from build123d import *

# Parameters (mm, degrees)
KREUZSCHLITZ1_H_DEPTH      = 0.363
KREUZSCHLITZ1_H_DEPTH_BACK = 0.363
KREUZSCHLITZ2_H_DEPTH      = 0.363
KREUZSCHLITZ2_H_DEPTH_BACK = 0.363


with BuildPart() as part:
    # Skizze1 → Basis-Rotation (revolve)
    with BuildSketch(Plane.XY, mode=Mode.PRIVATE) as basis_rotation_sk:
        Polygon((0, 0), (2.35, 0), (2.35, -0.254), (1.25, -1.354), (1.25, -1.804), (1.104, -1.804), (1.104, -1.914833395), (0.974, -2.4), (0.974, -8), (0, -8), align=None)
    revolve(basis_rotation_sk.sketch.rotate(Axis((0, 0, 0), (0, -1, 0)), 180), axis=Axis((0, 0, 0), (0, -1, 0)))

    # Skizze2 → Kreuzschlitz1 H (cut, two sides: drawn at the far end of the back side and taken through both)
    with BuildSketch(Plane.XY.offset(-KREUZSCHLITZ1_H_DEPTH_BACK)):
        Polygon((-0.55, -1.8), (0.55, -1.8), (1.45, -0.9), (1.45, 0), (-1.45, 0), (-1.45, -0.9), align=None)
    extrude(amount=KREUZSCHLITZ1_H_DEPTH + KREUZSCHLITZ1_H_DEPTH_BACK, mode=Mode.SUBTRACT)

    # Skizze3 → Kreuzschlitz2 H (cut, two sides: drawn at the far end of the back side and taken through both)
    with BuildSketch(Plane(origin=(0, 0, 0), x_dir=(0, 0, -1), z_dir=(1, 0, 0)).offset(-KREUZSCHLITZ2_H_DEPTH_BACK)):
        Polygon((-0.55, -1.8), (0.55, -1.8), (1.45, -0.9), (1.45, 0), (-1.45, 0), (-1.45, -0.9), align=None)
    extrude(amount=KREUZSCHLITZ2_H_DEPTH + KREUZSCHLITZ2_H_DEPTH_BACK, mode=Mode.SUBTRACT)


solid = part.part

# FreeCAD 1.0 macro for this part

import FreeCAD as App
import Part
import Sketcher

V = App.Vector
Q = App.Units.Quantity


def add_polygon(sketch, points):
    """Adds a closed chain of lines whose ends are joined by coincident constraints."""
    first, n = sketch.GeometryCount, len(points)
    for a, b in zip(points, points[1:] + points[:1]):
        sketch.addGeometry(Part.LineSegment(App.Vector(*a, 0), App.Vector(*b, 0)), False)
    for i in range(n):
        sketch.addConstraint(Sketcher.Constraint("Coincident", first + i, 2, first + (i + 1) % n, 1))

doc = App.newDocument("Part")
body = doc.addObject("PartDesign::Body", "Body")

# Sketch on XY plane
sketch1 = body.newObject("Sketcher::SketchObject", "Sketch")
sketch1.AttachmentSupport = (doc.getObject("XY_Plane"), [""])
sketch1.MapMode = "FlatFace"
add_polygon(sketch1, [(2.35, 0), (0, 0), (0, -8), (0.974, -8), (0.974, -2.4), (1.104, -1.914833), (1.104, -1.804), (1.25, -1.804), (1.25, -1.354), (2.35, -0.254)])  # lines 0-9
sketch1.addConstraint(Sketcher.Constraint("Horizontal", 0))
sketch1.addConstraint(Sketcher.Constraint("Vertical", 1))
sketch1.addConstraint(Sketcher.Constraint("Horizontal", 2))
sketch1.addConstraint(Sketcher.Constraint("Vertical", 3))
sketch1.addConstraint(Sketcher.Constraint("Vertical", 5))
sketch1.addConstraint(Sketcher.Constraint("Horizontal", 6))
sketch1.addConstraint(Sketcher.Constraint("Vertical", 7))
sketch1.addConstraint(Sketcher.Constraint("Vertical", 9))
sketch1.addConstraint(Sketcher.Constraint("Coincident", 0, 2, -1, 1))
sketch1.addConstraint(Sketcher.Constraint("DistanceY", 1, 2, 1, 1, Q("8 mm")))
sketch1.addConstraint(Sketcher.Constraint("Angle", 4, Q("75 deg")))
sketch1.addConstraint(Sketcher.Constraint("Angle", 8, Q("45 deg")))
sketch1.addConstraint(Sketcher.Constraint("DistanceY", 3, 1, 3, 2, Q("5.6 mm")))
sketch1.addConstraint(Sketcher.Constraint("DistanceX", 0, 2, 0, 1, Q("2.35 mm")))
sketch1.addConstraint(Sketcher.Constraint("DistanceY", 7, 1, 7, 2, Q("0.45 mm")))
sketch1.addConstraint(Sketcher.Constraint("DistanceX", 7, 2, 8, 2, Q("1.1 mm")))
sketch1.addConstraint(Sketcher.Constraint("DistanceX", 2, 1, 2, 2, Q("0.974 mm")))
sketch1.addConstraint(Sketcher.Constraint("DistanceX", 6, 1, 6, 2, Q("0.146 mm")))
sketch1.addConstraint(Sketcher.Constraint("DistanceY", 9, 1, 9, 2, Q("0.254 mm")))
revolution = body.newObject("PartDesign::Revolution", "Revolution")
revolution.Profile = sketch1
revolution.ReferenceAxis = (sketch1, ["V_Axis"])
revolution.Angle = 360

# Sketch on XY plane
sketch2 = body.newObject("Sketcher::SketchObject", "Sketch001")
sketch2.AttachmentSupport = (doc.getObject("XY_Plane"), [""])
sketch2.MapMode = "FlatFace"
add_polygon(sketch2, [(-0.55, -1.8), (0.55, -1.8), (1.45, -0.9), (1.45, 0), (-1.45, 0), (-1.45, -0.9)])  # lines 0-5
sketch2.addConstraint(Sketcher.Constraint("Horizontal", 0))
sketch2.addConstraint(Sketcher.Constraint("Vertical", 2))
sketch2.addConstraint(Sketcher.Constraint("Horizontal", 3))
sketch2.addConstraint(Sketcher.Constraint("Vertical", 4))
sketch2.addConstraint(Sketcher.Constraint("Symmetric", 2, 2, 3, 2, -1, 1))
sketch2.addConstraint(Sketcher.Constraint("Perpendicular", 1, 5))
sketch2.addConstraint(Sketcher.Constraint("Horizontal", 1, 2, 4, 2))
sketch2.addConstraint(Sketcher.Constraint("Equal", 1, 5))
sketch2.addConstraint(Sketcher.Constraint("DistanceX", 0, 1, 0, 2, Q("1.1 mm")))
sketch2.addConstraint(Sketcher.Constraint("DistanceX", 3, 2, 3, 1, Q("2.9 mm")))
sketch2.addConstraint(Sketcher.Constraint("DistanceY", 2, 1, 2, 2, Q("0.9 mm")))
pocket1 = body.newObject("PartDesign::Pocket", "Pocket")
pocket1.Profile = sketch2
pocket1.Type = "TwoLengths"
pocket1.Length = 0.363
pocket1.Length2 = 0.363
pocket1.Reversed = True

# Sketch on YZ plane
sketch3 = body.newObject("Sketcher::SketchObject", "Sketch002")
sketch3.AttachmentSupport = (doc.getObject("YZ_Plane"), [""])
sketch3.MapMode = "FlatFace"
add_polygon(sketch3, [(-1.8, 0.55), (-1.8, -0.55), (-0.9, -1.45), (0, -1.45), (0, 1.45), (-0.9, 1.45)])  # lines 0-5
sketch3.addConstraint(Sketcher.Constraint("Vertical", 0))
sketch3.addConstraint(Sketcher.Constraint("Horizontal", 2))
sketch3.addConstraint(Sketcher.Constraint("Vertical", 3))
sketch3.addConstraint(Sketcher.Constraint("Horizontal", 4))
sketch3.addConstraint(Sketcher.Constraint("Symmetric", 2, 2, 3, 2, -1, 1))
sketch3.addConstraint(Sketcher.Constraint("Perpendicular", 1, 5))
sketch3.addConstraint(Sketcher.Constraint("Vertical", 1, 2, 4, 2))
sketch3.addConstraint(Sketcher.Constraint("Equal", 1, 5))
sketch3.addConstraint(Sketcher.Constraint("DistanceX", 2, 1, 2, 2, Q("0.9 mm")))
sketch3.addConstraint(Sketcher.Constraint("DistanceY", 0, 2, 0, 1, Q("1.1 mm")))
sketch3.addConstraint(Sketcher.Constraint("DistanceY", 3, 1, 3, 2, Q("2.9 mm")))
pocket2 = body.newObject("PartDesign::Pocket", "Pocket001")
pocket2.Profile = sketch3
pocket2.Type = "TwoLengths"
pocket2.Length = 0.363
pocket2.Length2 = 0.363
pocket2.Reversed = True

doc.recompute()
